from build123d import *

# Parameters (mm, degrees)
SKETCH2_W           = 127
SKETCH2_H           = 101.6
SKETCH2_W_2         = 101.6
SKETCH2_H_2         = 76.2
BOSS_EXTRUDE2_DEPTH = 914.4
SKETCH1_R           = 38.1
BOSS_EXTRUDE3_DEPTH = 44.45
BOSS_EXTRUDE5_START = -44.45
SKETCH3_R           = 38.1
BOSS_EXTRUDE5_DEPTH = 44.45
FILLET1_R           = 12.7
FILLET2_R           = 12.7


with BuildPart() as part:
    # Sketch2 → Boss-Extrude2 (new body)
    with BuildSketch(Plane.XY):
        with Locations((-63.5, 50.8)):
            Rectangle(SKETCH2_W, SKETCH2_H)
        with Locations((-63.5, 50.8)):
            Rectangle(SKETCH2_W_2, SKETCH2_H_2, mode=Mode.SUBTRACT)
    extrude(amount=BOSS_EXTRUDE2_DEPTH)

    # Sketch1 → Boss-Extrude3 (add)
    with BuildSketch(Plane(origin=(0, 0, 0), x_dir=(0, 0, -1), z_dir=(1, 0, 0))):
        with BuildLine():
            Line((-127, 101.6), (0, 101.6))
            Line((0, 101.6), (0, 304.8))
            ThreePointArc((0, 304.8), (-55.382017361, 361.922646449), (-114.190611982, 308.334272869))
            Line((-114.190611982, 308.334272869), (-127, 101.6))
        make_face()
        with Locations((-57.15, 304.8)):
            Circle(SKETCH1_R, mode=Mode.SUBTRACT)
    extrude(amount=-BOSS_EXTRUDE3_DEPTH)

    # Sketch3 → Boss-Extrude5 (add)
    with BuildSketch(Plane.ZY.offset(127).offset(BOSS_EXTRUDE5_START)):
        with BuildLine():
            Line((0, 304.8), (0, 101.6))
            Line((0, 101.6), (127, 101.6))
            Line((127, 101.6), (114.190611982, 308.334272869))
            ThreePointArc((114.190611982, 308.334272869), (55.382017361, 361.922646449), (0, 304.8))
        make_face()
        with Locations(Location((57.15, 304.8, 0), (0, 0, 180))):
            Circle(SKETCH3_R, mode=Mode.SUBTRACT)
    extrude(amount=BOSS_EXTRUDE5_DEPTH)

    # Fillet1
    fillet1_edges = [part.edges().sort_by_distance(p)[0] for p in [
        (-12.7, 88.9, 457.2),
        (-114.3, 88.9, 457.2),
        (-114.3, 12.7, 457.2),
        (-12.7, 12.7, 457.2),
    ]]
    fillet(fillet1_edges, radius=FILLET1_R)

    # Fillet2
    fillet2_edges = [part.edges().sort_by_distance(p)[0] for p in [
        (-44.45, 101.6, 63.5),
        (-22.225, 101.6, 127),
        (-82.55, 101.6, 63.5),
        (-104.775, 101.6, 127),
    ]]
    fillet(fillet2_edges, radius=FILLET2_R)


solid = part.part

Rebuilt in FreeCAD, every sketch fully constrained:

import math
import FreeCAD as App
import Part
import Sketcher

V = App.Vector
Q = App.Units.Quantity


def edges_at(feature, points):
    """Names of the edges that pass closest to the given points."""
    edges = feature.Shape.Edges
    near = lambda p: min(range(len(edges)), key=lambda i: edges[i].distToShape(Part.Vertex(*p))[0])
    return sorted({f"Edge{near(p) + 1}" for p in points})

doc = App.newDocument("Part")
body = doc.addObject("PartDesign::Body", "Body")

# Sketch on XY plane
sketch1 = doc.addObject("Sketcher::SketchObject", "Sketch")
body.addObject(sketch1)
sketch1.AttachmentSupport = (doc.XY_Plane, [""])
sketch1.MapMode = "FlatFace"
sketch1.addGeometry([
    Part.LineSegment(V(-127, 102, 0), V(-127, 0, 0)),  # 0
    Part.LineSegment(V(-127, 0, 0), V(0, 0, 0)),  # 1
    Part.LineSegment(V(0, 0, 0), V(0, 102, 0)),  # 2
    Part.LineSegment(V(0, 102, 0), V(-127, 102, 0)),  # 3
    Part.LineSegment(V(-13, 13, 0), V(-114, 13, 0)),  # 4
    Part.LineSegment(V(-114, 13, 0), V(-114, 89, 0)),  # 5
    Part.LineSegment(V(-114, 89, 0), V(-13, 89, 0)),  # 6
    Part.LineSegment(V(-13, 89, 0), V(-13, 13, 0)),  # 7
], False)
sketch1.addConstraint([
    Sketcher.Constraint("Coincident", 0, 2, 1, 1),
    Sketcher.Constraint("Coincident", 1, 2, 2, 1),
    Sketcher.Constraint("Coincident", 2, 2, 3, 1),
    Sketcher.Constraint("Coincident", 3, 2, 0, 1),
    Sketcher.Constraint("Coincident", 4, 2, 5, 1),
    Sketcher.Constraint("Coincident", 5, 2, 6, 1),
    Sketcher.Constraint("Coincident", 6, 2, 7, 1),
    Sketcher.Constraint("Coincident", 7, 2, 4, 1),
    Sketcher.Constraint("Vertical", 0),
    Sketcher.Constraint("Horizontal", 1),
    Sketcher.Constraint("Vertical", 2),
    Sketcher.Constraint("Horizontal", 3),
    Sketcher.Constraint("Horizontal", 4),
    Sketcher.Constraint("Vertical", 5),
    Sketcher.Constraint("Horizontal", 6),
    Sketcher.Constraint("Vertical", 7),
    Sketcher.Constraint("Coincident", 1, 2, -1, 1),
    Sketcher.Constraint("Equal", 6, 0),
    Sketcher.Constraint("DistanceX", 1, 1, 1, 2, Q("5 in")),
    Sketcher.Constraint("DistanceX", 4, 2, 4, 1, Q("4 in")),
    Sketcher.Constraint("DistanceY", 5, 1, 5, 2, Q("3 in")),
    Sketcher.Constraint("DistanceX", 4, 2, -1, 1, Q("4.5 in")),
    Sketcher.Constraint("DistanceY", -1, 1, 4, 2, Q("0.5 in")),
])
pad1 = doc.addObject("PartDesign::Pad", "Pad")
body.addObject(pad1)
pad1.Profile = sketch1
pad1.Length = Q("36 in")

# Sketch on YZ plane
sketch2 = doc.addObject("Sketcher::SketchObject", "Sketch001")
body.addObject(sketch2)
sketch2.AttachmentSupport = (doc.YZ_Plane, [""])
sketch2.MapMode = "FlatFace"
sketch2.addGeometry([
    Part.LineSegment(V(102, 127, 0), V(102, 0, 0)),  # 0
    Part.LineSegment(V(102, 0, 0), V(305, 0, 0)),  # 1
    Part.ArcOfCircle(Part.Circle(V(305, 57, 0), V(0, 0, 1), 57), math.radians(-90), math.radians(86)),  # 2
    Part.LineSegment(V(308, 114, 0), V(102, 127, 0)),  # 3
    Part.Circle(V(305, 57, 0), V(0, 0, 1), 38),  # 4
], False)
sketch2.addConstraint([
    Sketcher.Constraint("Coincident", 0, 2, 1, 1),
    Sketcher.Constraint("Tangent", 1, 2, 2, 1),
    Sketcher.Constraint("Tangent", 2, 2, 3, 1),
    Sketcher.Constraint("Coincident", 3, 2, 0, 1),
    Sketcher.Constraint("Vertical", 0),
    Sketcher.Constraint("Horizontal", 1),
    Sketcher.Constraint("Coincident", 4, 3, 2, 3),
    Sketcher.Constraint("PointOnObject", 0, 2, -1),
    Sketcher.Constraint("Diameter", 4, Q("3 in")),
    Sketcher.Constraint("DistanceX", 1, 1, 1, 2, Q("8 in")),
    Sketcher.Constraint("DistanceY", 0, 2, 0, 1, Q("5 in")),
    Sketcher.Constraint("Radius", 2, Q("2.25 in")),
    Sketcher.Constraint("DistanceX", -1, 1, 2, 3, Q("12 in")),
])
pad2 = doc.addObject("PartDesign::Pad", "Pad001")
body.addObject(pad2)
pad2.Profile = sketch2
pad2.Length = Q("1.75 in")
pad2.Reversed = True

# Sketch on YZ plane
sketch3 = doc.addObject("Sketcher::SketchObject", "Sketch002")
body.addObject(sketch3)
sketch3.AttachmentSupport = (doc.YZ_Plane, [""])
sketch3.MapMode = "FlatFace"
sketch3.AttachmentOffset = App.Placement(V(0, 0, -3.25 * 25.4), App.Rotation())
sketch3.addGeometry([
    Part.LineSegment(V(305, 0, 0), V(102, 0, 0)),  # 0
    Part.LineSegment(V(102, 0, 0), V(102, 127, 0)),  # 1
    Part.LineSegment(V(102, 127, 0), V(308, 114, 0)),  # 2
    Part.ArcOfCircle(Part.Circle(V(305, 57, 0), V(0, 0, 1), 57), math.radians(-90), math.radians(86)),  # 3
    Part.Circle(V(305, 57, 0), V(0, 0, 1), 38),  # 4
], False)
sketch3.addConstraint([
    Sketcher.Constraint("Coincident", 0, 2, 1, 1),
    Sketcher.Constraint("Coincident", 1, 2, 2, 1),
    Sketcher.Constraint("Tangent", 2, 2, 3, 2),
    Sketcher.Constraint("Tangent", 3, 1, 0, 1),
    Sketcher.Constraint("Horizontal", 0),
    Sketcher.Constraint("Vertical", 1),
    Sketcher.Constraint("Coincident", 4, 3, 3, 3),
    Sketcher.Constraint("PointOnObject", 0, 2, -1),
    Sketcher.Constraint("Diameter", 4, Q("3 in")),
    Sketcher.Constraint("DistanceX", 0, 2, 0, 1, Q("8 in")),
    Sketcher.Constraint("DistanceY", 1, 1, 1, 2, Q("5 in")),
    Sketcher.Constraint("Radius", 3, Q("2.25 in")),
    Sketcher.Constraint("DistanceX", -1, 1, 3, 3, Q("12 in")),
])
pad3 = doc.addObject("PartDesign::Pad", "Pad002")
body.addObject(pad3)
pad3.Profile = sketch3
pad3.Length = Q("1.75 in")
pad3.Reversed = True
doc.recompute()

fillet = doc.addObject("PartDesign::Fillet", "Fillet")
body.addObject(fillet)
fillet.Base = (pad3, edges_at(pad3, [
    (-12.7, 88.9, 457.2),
    (-114.3, 88.9, 457.2),
    (-114.3, 12.7, 457.2),
    (-12.7, 12.7, 457.2),
]))
fillet.Radius = Q("0.5 in")
doc.recompute()

fillet2 = doc.addObject("PartDesign::Fillet", "Fillet001")
body.addObject(fillet2)
fillet2.Base = (fillet, edges_at(fillet, [
    (-44.45, 101.6, 63.5),
    (-22.225, 101.6, 127),
    (-82.55, 101.6, 63.5),
    (-104.775, 101.6, 127),
]))
fillet2.Radius = Q("0.5 in")

doc.recompute()
